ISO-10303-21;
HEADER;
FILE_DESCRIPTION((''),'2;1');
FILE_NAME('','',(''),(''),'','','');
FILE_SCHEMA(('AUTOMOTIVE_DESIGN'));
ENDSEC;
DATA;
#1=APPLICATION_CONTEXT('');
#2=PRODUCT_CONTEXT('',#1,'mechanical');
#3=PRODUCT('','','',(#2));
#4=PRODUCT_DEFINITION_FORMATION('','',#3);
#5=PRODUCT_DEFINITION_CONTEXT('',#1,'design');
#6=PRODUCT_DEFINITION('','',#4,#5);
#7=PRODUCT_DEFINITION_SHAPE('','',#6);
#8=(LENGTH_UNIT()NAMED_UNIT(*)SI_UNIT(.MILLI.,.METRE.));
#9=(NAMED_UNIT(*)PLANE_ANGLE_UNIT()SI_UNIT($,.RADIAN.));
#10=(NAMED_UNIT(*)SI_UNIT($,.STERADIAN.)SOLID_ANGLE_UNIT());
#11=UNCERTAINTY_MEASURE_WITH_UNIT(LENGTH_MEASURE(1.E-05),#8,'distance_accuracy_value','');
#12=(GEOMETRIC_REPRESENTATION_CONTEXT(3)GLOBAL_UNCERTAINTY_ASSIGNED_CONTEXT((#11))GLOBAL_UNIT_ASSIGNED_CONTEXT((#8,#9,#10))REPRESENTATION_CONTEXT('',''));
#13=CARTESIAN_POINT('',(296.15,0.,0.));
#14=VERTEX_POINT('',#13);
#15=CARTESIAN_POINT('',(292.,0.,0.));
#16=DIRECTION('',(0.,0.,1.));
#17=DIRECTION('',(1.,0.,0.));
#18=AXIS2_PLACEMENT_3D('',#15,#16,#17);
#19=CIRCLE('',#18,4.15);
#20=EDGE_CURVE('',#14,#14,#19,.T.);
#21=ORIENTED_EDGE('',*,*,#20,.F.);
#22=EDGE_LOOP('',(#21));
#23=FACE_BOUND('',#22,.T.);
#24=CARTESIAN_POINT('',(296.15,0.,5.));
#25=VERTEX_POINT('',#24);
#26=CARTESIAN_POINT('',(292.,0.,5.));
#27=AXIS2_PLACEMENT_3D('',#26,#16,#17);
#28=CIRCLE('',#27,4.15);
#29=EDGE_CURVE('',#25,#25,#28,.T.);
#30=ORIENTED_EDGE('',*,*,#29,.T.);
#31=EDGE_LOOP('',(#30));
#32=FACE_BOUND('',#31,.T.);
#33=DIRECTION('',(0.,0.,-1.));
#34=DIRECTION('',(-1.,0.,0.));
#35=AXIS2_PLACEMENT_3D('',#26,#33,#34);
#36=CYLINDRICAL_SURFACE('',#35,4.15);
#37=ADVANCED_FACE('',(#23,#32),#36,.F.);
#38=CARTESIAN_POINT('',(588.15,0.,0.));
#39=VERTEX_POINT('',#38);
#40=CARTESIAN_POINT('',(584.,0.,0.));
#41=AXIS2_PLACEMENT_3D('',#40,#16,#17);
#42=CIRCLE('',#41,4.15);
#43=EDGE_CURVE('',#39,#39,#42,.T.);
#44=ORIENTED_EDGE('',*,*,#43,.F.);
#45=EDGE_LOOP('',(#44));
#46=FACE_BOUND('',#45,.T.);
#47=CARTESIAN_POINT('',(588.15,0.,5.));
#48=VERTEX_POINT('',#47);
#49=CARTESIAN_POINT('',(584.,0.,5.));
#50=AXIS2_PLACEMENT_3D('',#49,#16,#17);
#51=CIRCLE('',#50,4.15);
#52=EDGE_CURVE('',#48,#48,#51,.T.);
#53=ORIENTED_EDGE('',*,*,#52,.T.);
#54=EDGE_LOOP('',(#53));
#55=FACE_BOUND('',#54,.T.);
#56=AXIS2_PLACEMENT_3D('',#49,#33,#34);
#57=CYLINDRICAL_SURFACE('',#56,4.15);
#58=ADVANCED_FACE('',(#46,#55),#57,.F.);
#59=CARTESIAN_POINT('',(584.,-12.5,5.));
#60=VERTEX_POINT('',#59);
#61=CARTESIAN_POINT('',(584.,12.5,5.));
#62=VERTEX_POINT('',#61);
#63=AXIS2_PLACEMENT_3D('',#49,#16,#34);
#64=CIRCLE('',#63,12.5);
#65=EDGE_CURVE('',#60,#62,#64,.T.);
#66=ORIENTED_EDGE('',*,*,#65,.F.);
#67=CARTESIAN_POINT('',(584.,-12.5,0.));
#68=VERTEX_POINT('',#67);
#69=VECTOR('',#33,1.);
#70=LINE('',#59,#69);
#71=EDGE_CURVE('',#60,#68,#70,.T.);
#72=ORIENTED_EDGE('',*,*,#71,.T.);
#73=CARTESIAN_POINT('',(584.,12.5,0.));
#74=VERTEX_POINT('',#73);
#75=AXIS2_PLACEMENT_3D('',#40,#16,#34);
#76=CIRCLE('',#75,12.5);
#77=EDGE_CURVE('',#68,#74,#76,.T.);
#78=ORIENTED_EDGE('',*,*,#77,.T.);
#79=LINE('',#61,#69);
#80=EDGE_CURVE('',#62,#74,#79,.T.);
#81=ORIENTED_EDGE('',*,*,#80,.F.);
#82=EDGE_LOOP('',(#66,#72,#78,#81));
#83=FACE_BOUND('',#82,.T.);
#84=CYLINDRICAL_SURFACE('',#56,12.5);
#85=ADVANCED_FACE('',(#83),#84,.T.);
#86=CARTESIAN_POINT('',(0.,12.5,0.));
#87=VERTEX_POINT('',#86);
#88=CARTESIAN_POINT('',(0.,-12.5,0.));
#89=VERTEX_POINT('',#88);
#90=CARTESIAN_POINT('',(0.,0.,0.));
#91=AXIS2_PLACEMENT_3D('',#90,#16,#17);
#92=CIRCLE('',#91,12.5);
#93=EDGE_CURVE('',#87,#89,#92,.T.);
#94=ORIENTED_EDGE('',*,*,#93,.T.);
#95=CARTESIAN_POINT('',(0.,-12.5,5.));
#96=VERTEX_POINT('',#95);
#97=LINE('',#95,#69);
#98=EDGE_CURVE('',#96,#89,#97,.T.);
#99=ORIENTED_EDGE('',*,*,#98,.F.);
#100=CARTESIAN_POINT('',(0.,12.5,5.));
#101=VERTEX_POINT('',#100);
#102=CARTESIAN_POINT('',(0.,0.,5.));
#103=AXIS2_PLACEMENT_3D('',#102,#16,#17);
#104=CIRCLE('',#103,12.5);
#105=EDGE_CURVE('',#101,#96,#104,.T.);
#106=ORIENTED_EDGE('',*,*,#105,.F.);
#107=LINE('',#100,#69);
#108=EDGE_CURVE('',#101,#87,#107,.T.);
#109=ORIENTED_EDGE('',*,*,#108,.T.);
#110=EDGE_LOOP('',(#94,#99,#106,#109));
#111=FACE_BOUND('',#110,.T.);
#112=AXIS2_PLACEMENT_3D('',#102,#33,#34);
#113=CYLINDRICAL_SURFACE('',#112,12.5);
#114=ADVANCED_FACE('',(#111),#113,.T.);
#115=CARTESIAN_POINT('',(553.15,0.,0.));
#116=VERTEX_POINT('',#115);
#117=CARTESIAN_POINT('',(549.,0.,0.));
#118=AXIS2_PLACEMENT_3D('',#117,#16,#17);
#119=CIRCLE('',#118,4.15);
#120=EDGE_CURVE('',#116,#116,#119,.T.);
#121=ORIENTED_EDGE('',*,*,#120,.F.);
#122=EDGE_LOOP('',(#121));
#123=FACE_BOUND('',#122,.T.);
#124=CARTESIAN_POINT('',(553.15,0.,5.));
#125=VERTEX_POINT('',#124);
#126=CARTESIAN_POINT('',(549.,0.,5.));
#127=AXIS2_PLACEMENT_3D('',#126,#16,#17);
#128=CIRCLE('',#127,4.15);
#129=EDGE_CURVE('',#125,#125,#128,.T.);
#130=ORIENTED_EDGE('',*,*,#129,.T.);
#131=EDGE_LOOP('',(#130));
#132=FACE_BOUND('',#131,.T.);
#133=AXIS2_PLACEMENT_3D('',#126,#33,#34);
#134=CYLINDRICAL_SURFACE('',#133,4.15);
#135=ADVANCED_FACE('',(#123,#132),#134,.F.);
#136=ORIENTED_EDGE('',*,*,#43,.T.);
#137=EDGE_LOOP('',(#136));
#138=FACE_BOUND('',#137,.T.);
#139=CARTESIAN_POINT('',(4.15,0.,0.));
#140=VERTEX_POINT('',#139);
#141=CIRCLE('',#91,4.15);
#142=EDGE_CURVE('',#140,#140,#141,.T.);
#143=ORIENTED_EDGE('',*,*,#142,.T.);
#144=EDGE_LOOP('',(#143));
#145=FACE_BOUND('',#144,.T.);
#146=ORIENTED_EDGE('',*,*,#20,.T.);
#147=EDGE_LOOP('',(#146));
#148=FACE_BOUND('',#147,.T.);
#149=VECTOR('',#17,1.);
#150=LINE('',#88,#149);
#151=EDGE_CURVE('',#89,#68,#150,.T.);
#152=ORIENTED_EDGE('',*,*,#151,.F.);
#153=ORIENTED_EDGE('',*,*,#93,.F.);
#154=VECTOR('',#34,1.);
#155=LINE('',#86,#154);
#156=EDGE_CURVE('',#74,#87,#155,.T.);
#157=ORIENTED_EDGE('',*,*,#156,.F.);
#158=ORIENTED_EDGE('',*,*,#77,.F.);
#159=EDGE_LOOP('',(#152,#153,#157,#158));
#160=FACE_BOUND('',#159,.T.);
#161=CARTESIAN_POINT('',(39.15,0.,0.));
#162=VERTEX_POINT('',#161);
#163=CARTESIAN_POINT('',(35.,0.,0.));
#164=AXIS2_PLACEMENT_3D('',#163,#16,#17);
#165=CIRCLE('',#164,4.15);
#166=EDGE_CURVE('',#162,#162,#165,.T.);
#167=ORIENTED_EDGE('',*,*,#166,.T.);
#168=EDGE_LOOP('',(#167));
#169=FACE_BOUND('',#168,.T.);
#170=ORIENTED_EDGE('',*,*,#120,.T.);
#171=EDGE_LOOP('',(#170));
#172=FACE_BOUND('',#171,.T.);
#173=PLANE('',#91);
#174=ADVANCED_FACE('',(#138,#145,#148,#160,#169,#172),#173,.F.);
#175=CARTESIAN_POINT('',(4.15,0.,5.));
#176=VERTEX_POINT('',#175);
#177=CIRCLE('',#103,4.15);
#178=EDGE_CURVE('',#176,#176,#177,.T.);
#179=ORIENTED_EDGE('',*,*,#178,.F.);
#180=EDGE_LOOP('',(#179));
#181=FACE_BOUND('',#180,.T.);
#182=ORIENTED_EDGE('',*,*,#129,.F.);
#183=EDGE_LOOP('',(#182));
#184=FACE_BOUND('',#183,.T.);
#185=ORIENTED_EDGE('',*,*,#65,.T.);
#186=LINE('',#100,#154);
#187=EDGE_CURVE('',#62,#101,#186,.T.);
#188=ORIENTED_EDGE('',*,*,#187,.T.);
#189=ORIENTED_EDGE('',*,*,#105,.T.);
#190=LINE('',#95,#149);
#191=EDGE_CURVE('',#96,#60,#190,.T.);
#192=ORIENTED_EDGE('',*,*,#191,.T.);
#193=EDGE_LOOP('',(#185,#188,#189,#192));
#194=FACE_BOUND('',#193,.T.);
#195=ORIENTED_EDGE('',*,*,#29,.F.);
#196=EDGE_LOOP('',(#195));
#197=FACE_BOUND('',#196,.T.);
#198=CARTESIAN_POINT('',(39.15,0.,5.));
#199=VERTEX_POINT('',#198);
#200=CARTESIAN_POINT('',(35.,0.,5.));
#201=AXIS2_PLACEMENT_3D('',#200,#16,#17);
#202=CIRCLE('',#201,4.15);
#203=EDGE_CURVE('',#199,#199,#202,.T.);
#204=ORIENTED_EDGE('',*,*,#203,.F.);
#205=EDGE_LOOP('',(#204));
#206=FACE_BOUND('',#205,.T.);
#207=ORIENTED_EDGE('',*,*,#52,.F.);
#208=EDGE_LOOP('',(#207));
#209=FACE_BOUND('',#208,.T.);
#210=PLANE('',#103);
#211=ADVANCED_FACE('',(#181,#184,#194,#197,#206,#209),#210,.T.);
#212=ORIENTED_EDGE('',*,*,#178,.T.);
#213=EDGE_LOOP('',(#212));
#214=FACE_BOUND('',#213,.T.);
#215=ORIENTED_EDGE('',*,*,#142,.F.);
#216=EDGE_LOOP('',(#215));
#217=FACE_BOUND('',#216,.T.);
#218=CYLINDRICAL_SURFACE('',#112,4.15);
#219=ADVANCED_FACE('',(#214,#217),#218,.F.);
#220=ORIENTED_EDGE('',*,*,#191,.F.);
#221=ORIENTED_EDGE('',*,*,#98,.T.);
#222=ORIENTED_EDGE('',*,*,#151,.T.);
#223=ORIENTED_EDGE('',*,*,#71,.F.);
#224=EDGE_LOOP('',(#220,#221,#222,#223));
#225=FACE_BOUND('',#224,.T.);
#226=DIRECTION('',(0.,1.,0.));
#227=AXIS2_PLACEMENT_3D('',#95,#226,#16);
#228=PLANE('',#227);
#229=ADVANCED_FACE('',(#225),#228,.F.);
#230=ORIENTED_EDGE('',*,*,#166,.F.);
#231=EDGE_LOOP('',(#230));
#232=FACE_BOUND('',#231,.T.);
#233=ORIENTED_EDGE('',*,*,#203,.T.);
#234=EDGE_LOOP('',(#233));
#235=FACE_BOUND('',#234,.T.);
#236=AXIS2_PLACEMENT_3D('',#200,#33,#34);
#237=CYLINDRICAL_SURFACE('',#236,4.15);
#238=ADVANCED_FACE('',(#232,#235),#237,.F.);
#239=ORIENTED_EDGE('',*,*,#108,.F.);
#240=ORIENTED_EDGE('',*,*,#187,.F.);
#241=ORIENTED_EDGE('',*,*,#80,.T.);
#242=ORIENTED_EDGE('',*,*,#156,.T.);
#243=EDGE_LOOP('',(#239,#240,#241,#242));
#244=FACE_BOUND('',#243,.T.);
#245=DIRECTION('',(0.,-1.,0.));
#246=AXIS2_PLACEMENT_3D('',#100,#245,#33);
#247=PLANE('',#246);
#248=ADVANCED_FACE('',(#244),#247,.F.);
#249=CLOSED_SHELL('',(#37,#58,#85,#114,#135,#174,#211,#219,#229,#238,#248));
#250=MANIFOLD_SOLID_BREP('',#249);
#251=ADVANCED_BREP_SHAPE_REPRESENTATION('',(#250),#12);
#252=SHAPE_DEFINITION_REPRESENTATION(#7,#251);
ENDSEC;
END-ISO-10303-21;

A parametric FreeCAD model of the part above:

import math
import FreeCAD as App
import Part
import Sketcher

doc = App.newDocument("Part")
body = doc.addObject("PartDesign::Body", "Body")

# Sketch on XY plane
sketch1 = body.newObject("Sketcher::SketchObject", "Sketch")
sketch1.AttachmentSupport = (doc.getObject("XY_Plane"), [""])
sketch1.MapMode = "FlatFace"
sketch1.addGeometry([
    Part.LineSegment(App.Vector(584, 12.5, 0), App.Vector(0, 12.5, 0)),  # 0
    Part.ArcOfCircle(Part.Circle(App.Vector(0, 0, 0), App.Vector(0, 0, 1), 12.5), math.radians(90), math.radians(270)),  # 1
    Part.LineSegment(App.Vector(0, -12.5, 0), App.Vector(584, -12.5, 0)),  # 2
    Part.ArcOfCircle(Part.Circle(App.Vector(584, 0, 0), App.Vector(0, 0, 1), 12.5), math.radians(-90), math.radians(90)),  # 3
    Part.Circle(App.Vector(584, 0, 0), App.Vector(0, 0, 1), 4.2),  # 4
    Part.Circle(App.Vector(549, 0, 0), App.Vector(0, 0, 1), 4.2),  # 5
    Part.Circle(App.Vector(292, 0, 0), App.Vector(0, 0, 1), 4.2),  # 6
    Part.Circle(App.Vector(35, 0, 0), App.Vector(0, 0, 1), 4.2),  # 7
    Part.Circle(App.Vector(0, 0, 0), App.Vector(0, 0, 1), 4.2),  # 8
], False)
sketch1.addConstraint([
    Sketcher.Constraint("Tangent", 0, 2, 1, 1),
    Sketcher.Constraint("Tangent", 1, 2, 2, 1),
    Sketcher.Constraint("Tangent", 2, 2, 3, 1),
    Sketcher.Constraint("Tangent", 3, 2, 0, 1),
    Sketcher.Constraint("Horizontal", 0),
    Sketcher.Constraint("Horizontal", 2),
    Sketcher.Constraint("Coincident", 1, 3, -1, 1),
    Sketcher.Constraint("Coincident", 8, 3, -1, 1),
    Sketcher.Constraint("Coincident", 4, 3, 3, 3),
    Sketcher.Constraint("Equal", 4, 5),
    Sketcher.Constraint("Equal", 5, 6),
    Sketcher.Constraint("Equal", 6, 7),
    Sketcher.Constraint("Equal", 7, 8),
    Sketcher.Constraint("PointOnObject", 5, 3, -1),
    Sketcher.Constraint("PointOnObject", 6, 3, -1),
    Sketcher.Constraint("PointOnObject", 7, 3, -1),
    Sketcher.Constraint("Diameter", 4, 8.3),
    Sketcher.Constraint("Radius", 1, 12.5),
    Sketcher.Constraint("DistanceX", 0, 2, 0, 1, 584.0),
    Sketcher.Constraint("DistanceX", -1, 1, 5, 3, 549.0),
    Sketcher.Constraint("DistanceX", -1, 1, 6, 3, 292.0),
    Sketcher.Constraint("DistanceX", -1, 1, 7, 3, 35.0),
])
pad1 = body.newObject("PartDesign::Pad", "Pad")
pad1.Profile = sketch1
pad1.Length = 5

doc.recompute()
